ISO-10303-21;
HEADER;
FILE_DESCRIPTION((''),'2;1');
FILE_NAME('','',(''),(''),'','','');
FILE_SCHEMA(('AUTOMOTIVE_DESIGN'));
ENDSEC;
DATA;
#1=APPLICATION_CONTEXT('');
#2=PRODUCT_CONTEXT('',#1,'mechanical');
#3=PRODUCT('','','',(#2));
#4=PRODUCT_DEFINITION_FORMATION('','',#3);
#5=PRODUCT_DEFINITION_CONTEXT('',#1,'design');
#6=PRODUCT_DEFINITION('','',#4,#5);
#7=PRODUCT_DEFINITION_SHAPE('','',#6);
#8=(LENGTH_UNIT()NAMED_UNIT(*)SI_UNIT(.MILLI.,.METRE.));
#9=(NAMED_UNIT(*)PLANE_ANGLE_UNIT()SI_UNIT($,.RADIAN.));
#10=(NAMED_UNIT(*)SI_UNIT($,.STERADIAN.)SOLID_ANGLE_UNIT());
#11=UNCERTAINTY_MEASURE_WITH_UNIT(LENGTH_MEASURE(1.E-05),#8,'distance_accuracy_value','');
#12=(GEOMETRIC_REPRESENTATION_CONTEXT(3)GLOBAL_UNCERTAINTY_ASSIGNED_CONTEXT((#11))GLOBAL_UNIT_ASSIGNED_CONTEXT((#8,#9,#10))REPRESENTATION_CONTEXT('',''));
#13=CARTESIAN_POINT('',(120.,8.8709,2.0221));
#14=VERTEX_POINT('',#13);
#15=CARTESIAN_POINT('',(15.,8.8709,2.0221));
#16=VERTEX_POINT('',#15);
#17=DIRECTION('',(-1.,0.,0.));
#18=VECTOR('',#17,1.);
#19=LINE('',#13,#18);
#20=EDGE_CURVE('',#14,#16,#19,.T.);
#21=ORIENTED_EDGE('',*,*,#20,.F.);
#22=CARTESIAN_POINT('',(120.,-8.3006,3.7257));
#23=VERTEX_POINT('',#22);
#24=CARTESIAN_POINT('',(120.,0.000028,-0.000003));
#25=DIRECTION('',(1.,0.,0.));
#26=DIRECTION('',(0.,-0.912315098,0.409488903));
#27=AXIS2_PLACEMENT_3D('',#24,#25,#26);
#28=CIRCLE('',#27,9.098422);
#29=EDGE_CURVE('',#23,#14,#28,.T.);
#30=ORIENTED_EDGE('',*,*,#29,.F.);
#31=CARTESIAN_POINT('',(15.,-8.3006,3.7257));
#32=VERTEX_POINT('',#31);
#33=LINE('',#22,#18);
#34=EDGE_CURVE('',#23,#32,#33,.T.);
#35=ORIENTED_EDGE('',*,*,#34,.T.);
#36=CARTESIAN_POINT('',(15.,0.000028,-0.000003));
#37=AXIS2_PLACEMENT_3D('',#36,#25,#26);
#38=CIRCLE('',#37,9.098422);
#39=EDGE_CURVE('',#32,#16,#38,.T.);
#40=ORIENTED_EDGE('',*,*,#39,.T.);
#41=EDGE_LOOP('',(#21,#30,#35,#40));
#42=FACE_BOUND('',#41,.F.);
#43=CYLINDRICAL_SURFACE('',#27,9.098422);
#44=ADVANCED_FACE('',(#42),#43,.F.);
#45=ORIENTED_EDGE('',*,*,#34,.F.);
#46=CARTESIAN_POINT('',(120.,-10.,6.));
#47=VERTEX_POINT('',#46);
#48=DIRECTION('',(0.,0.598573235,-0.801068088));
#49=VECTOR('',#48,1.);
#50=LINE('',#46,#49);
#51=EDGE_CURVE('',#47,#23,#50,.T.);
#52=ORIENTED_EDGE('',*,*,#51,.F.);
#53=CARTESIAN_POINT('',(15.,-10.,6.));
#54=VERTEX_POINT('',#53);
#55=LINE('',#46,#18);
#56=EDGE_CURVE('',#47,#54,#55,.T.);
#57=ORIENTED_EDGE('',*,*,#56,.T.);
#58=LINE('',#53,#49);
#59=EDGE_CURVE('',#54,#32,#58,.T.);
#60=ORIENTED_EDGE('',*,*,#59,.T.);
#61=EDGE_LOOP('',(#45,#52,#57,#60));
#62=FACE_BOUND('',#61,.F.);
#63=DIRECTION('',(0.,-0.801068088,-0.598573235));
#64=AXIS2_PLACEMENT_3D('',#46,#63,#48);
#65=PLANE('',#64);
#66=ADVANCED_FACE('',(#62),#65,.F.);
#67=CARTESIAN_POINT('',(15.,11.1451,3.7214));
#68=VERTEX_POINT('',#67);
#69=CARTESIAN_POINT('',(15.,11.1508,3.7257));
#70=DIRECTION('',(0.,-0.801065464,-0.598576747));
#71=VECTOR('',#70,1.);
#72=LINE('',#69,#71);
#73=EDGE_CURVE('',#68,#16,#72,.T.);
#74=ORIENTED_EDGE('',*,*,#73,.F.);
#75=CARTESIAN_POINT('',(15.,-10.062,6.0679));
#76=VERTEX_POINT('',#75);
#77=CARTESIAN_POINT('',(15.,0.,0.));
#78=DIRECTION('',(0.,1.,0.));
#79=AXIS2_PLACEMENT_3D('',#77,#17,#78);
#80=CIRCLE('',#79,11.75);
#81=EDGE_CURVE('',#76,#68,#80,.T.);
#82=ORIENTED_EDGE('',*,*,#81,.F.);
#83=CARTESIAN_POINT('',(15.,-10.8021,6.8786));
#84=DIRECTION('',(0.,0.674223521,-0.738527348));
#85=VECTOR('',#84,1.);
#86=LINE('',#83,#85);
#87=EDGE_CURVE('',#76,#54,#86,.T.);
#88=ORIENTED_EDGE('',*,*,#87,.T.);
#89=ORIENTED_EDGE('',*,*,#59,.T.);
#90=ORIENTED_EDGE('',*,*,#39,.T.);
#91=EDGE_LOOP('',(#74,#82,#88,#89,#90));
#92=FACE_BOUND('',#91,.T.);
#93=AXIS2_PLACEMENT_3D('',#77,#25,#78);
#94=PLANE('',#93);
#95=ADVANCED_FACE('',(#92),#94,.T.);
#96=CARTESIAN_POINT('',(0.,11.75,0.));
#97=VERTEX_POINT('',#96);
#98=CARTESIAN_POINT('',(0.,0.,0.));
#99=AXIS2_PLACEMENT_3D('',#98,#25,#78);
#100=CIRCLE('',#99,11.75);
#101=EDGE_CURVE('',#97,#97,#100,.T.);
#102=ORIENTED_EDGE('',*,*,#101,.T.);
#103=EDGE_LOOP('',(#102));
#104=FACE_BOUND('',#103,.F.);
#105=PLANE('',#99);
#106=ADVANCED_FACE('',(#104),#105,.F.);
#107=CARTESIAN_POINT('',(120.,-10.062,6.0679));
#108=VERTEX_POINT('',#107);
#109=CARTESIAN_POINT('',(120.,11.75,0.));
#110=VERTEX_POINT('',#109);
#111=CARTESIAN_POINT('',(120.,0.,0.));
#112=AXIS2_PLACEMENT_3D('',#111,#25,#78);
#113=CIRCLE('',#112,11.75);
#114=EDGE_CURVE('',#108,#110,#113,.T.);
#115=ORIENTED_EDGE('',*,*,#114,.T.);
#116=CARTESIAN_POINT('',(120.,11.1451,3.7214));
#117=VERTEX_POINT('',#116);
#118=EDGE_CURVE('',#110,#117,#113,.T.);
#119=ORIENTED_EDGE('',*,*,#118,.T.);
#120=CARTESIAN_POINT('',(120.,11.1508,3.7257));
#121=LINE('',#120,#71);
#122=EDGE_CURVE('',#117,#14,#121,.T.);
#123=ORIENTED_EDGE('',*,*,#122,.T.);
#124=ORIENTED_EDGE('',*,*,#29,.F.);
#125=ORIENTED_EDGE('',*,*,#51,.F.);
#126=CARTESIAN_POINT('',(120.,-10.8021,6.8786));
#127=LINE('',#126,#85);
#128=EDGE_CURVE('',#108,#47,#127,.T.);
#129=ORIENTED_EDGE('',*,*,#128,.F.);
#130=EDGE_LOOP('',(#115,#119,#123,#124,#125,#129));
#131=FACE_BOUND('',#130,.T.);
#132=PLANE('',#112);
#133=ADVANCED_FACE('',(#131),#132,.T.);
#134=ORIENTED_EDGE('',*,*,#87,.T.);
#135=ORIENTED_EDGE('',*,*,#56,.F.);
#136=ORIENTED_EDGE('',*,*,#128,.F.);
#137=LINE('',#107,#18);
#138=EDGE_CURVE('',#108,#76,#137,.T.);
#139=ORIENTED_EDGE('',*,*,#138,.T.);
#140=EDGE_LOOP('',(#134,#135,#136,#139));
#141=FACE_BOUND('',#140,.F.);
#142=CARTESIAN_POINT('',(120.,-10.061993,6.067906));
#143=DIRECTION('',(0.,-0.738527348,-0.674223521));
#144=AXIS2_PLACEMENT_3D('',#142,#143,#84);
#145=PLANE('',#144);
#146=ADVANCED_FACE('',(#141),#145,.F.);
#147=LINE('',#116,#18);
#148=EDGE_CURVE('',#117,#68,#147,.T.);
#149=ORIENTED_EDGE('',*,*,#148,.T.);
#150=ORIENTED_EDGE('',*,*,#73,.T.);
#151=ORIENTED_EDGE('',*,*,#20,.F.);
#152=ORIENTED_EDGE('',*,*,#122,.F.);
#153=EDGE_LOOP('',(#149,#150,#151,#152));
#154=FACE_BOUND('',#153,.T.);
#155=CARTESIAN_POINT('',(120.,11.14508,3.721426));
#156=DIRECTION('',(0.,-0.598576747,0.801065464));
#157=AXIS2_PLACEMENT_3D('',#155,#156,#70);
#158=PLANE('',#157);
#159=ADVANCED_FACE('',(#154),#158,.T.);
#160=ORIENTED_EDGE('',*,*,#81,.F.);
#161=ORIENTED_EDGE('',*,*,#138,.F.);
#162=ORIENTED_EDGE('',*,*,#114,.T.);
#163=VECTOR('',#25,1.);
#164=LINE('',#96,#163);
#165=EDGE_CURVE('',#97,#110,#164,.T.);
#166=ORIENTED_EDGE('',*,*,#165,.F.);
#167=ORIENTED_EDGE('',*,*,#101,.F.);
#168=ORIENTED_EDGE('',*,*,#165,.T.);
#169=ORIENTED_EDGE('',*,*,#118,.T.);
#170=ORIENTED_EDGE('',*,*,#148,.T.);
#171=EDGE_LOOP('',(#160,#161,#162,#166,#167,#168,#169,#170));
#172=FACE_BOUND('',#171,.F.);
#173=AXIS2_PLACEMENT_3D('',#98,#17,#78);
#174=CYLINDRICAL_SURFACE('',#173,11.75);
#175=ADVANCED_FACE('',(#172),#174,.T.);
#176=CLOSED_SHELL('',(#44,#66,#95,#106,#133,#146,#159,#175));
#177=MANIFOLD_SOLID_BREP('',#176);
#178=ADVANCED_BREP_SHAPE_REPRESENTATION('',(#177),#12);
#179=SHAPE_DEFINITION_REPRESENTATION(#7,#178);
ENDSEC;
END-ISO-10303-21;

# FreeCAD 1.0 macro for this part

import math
import FreeCAD as App
import Part
import Sketcher
from FreeCAD import Vector
Q = App.Units.Quantity

doc = App.newDocument("Part")
body = doc.addObject("PartDesign::Body", "Body")

# Sketch on YZ plane
sketch1 = body.newObject("Sketcher::SketchObject", "Sketch")
sketch1.AttachmentSupport = (doc.getObject("YZ_Plane"), [""])
sketch1.MapMode = "FlatFace"
sketch1.addGeometry(Part.Circle(Vector(0, 0, 0), Vector(0, 0, 1), 12), False)
sketch1.addConstraint(Sketcher.Constraint("Coincident", 0, 3, -1, 1))
sketch1.addConstraint(Sketcher.Constraint("Diameter", 0, Q("23.5 mm")))
pad1 = body.newObject("PartDesign::Pad", "Pad")
pad1.Profile = sketch1
pad1.Length = 120

# Sketch on YZ plane
sketch2 = body.newObject("Sketcher::SketchObject", "Sketch001")
sketch2.AttachmentSupport = (doc.getObject("YZ_Plane"), [""])
sketch2.MapMode = "FlatFace"
sketch2.AttachmentOffset = App.Placement(Vector(0, 0, 120), App.Rotation())
sketch2.addGeometry(Part.LineSegment(Vector(-10.8, 6.9, 0), Vector(-10, 6, 0)), False)
sketch2.addGeometry(Part.LineSegment(Vector(-10, 6, 0), Vector(-8.3, 3.7, 0)), False)
sketch2.addGeometry(Part.ArcOfCircle(Part.Circle(Vector(0, 0, 0), Vector(0, 0, 1), 9.1), math.radians(156), math.radians(373)), False)
sketch2.addGeometry(Part.LineSegment(Vector(8.9, 2, 0), Vector(11.2, 3.7, 0)), False)
sketch2.addGeometry(Part.LineSegment(Vector(11.2, 3.7, 0), Vector(11.8, 4.9, 0)), False)
sketch2.addGeometry(Part.ArcOfCircle(Part.Circle(Vector(0, 0, 0), Vector(0, 0, 1), 12.8), math.radians(22), math.radians(148)), False)
sketch2.addConstraint(Sketcher.Constraint("Coincident", 0, 2, 1, 1))
sketch2.addConstraint(Sketcher.Constraint("Coincident", 1, 2, 2, 1))
sketch2.addConstraint(Sketcher.Constraint("Coincident", 2, 2, 3, 1))
sketch2.addConstraint(Sketcher.Constraint("Coincident", 3, 2, 4, 1))
sketch2.addConstraint(Sketcher.Constraint("Coincident", 4, 2, 5, 1))
sketch2.addConstraint(Sketcher.Constraint("Coincident", 5, 2, 0, 1))
sketch2.addConstraint(Sketcher.Constraint("Coincident", 2, 3, -1, 1))
sketch2.addConstraint(Sketcher.Constraint("Coincident", 5, 3, -1, 1))
sketch2.addConstraint(Sketcher.Constraint("Perpendicular", 1, 3))
sketch2.addConstraint(Sketcher.Constraint("Horizontal", 1, 2, 3, 2))
sketch2.addConstraint(Sketcher.Constraint("DistanceX", 0, 2, -1, 1, Q("10 mm")))
sketch2.addConstraint(Sketcher.Constraint("DistanceY", -1, 1, 0, 2, Q("6 mm")))
sketch2.addConstraint(Sketcher.Constraint("Angle", 4, Q("58.5211 deg")))
sketch2.addConstraint(Sketcher.Constraint("Radius", 2, Q("9.0984 mm")))
sketch2.addConstraint(Sketcher.Constraint("Radius", 5, Q("12.8063 mm")))
sketch2.addConstraint(Sketcher.Constraint("DistanceX", 2, 2, 3, 2, Q("2.28 mm")))
sketch2.addConstraint(Sketcher.Constraint("Distance", 1, Q("2.839 mm")))
sketch2.addConstraint(Sketcher.Constraint("DistanceY", 1, 2, 5, 2, Q("3.153 mm")))
pocket1 = body.newObject("PartDesign::Pocket", "Pocket")
pocket1.Profile = sketch2
pocket1.Length = 105

doc.recompute()
